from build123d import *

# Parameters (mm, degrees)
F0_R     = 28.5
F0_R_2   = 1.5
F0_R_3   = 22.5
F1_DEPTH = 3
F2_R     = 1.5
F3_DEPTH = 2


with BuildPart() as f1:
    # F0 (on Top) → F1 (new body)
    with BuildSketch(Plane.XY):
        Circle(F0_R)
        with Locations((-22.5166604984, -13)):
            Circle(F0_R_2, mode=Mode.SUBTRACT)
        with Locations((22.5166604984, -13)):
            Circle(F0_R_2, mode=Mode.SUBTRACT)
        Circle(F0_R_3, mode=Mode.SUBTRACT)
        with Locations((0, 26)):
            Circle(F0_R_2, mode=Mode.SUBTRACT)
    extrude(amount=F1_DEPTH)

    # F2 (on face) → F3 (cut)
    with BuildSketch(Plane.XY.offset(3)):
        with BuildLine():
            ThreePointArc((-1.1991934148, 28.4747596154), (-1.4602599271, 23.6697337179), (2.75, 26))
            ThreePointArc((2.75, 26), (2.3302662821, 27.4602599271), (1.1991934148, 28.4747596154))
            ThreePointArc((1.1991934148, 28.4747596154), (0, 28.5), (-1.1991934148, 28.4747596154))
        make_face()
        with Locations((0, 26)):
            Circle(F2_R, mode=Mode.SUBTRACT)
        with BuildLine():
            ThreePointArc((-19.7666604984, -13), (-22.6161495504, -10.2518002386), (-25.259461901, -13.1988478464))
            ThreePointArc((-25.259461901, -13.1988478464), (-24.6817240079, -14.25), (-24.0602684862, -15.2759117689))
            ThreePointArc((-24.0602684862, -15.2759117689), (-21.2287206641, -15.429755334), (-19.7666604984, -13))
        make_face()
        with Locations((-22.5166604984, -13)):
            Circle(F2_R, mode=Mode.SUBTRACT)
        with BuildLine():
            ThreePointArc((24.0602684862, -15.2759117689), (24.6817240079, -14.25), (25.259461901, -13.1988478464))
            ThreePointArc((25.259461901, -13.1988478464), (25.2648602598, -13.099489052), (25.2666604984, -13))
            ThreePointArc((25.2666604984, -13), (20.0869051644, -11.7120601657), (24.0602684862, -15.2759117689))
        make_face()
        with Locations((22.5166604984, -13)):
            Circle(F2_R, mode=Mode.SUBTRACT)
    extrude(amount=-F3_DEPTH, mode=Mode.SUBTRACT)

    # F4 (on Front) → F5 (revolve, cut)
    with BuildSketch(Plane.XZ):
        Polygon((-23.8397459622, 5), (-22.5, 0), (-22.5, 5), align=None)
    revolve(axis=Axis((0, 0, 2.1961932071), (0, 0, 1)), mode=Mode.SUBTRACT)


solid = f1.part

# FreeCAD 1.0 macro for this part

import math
import FreeCAD as App
import Part
import Sketcher
Q = App.Units.Quantity


def add_polygon(sketch, points):
    """Adds a closed chain of lines whose ends are joined by coincident constraints."""
    first, n = sketch.GeometryCount, len(points)
    for a, b in zip(points, points[1:] + points[:1]):
        sketch.addGeometry(Part.LineSegment(App.Vector(*a, 0), App.Vector(*b, 0)), False)
    for i in range(n):
        sketch.addConstraint(Sketcher.Constraint("Coincident", first + i, 2, first + (i + 1) % n, 1))

doc = App.newDocument("Part")
body = doc.addObject("PartDesign::Body", "Body")

sketch1 = doc.addObject("Sketcher::SketchObject", "Sketch")
body.addObject(sketch1)
sketch1.AttachmentSupport = (doc.XY_Plane, [""])
sketch1.MapMode = "FlatFace"
sketch1.addGeometry([
    Part.Circle(App.Vector(0, 0, 0), App.Vector(0, 0, 1), 28.5),
    Part.Circle(App.Vector(-22.5, -13, 0), App.Vector(0, 0, 1), 1.5),
    Part.Circle(App.Vector(22.5, -13, 0), App.Vector(0, 0, 1), 1.5),
    Part.Circle(App.Vector(0, 0, 0), App.Vector(0, 0, 1), 22.5),
    Part.Circle(App.Vector(0, 26, 0), App.Vector(0, 0, 1), 1.5),
], False)
sketch1.addConstraint([
    Sketcher.Constraint("Coincident", 0, 3, -1, 1),
    Sketcher.Constraint("Coincident", 3, 3, -1, 1),
    Sketcher.Constraint("Equal", 1, 2),
    Sketcher.Constraint("Equal", 2, 4),
    Sketcher.Constraint("Symmetric", 1, 3, 2, 3, -2),
    Sketcher.Constraint("PointOnObject", 4, 3, -2),
    Sketcher.Constraint("Diameter", 0, 57.0),
    Sketcher.Constraint("Diameter", 1, 3.0),
    Sketcher.Constraint("Diameter", 3, 45.0),
    Sketcher.Constraint("DistanceY", 1, 3, -1, 1, 13.0),
    Sketcher.Constraint("DistanceY", -1, 1, 4, 3, 26.0),
    Sketcher.Constraint("DistanceX", 1, 3, -1, 1, 22.51666),
])
pad1 = doc.addObject("PartDesign::Pad", "Pad")
body.addObject(pad1)
pad1.Profile = sketch1
pad1.Length = 3

sketch2 = doc.addObject("Sketcher::SketchObject", "Sketch001")
body.addObject(sketch2)
sketch2.AttachmentSupport = (doc.XY_Plane, [""])
sketch2.MapMode = "FlatFace"
sketch2.AttachmentOffset = App.Placement(App.Vector(0, 0, 3), App.Rotation())
sketch2.addGeometry([
    Part.ArcOfCircle(Part.Circle(App.Vector(0, 26, 0), App.Vector(0, 0, 1), 2.75), math.radians(116), math.radians(360)),
    Part.ArcOfCircle(Part.Circle(App.Vector(0, 26, 0), App.Vector(0, 0, 1), 2.75), math.radians(0), math.radians(64)),
    Part.ArcOfCircle(Part.Circle(App.Vector(0, 0, 0), App.Vector(0, 0, 1), 28.5), math.radians(87.59), math.radians(92.41)),
    Part.Circle(App.Vector(0, 26, 0), App.Vector(0, 0, 1), 1.5),
    Part.ArcOfCircle(Part.Circle(App.Vector(-22.52, -13, 0), App.Vector(0, 0, 1), 2.75), math.radians(0), math.radians(184)),
    Part.ArcOfCircle(Part.Circle(App.Vector(0, 0, 0), App.Vector(0, 0, 1), 28.5), math.radians(-152.41), math.radians(-147.59)),
    Part.ArcOfCircle(Part.Circle(App.Vector(-22.52, -13, 0), App.Vector(0, 0, 1), 2.75), math.radians(-124), math.radians(0)),
    Part.Circle(App.Vector(-22.52, -13, 0), App.Vector(0, 0, 1), 1.5),
    Part.ArcOfCircle(Part.Circle(App.Vector(0, 0, 0), App.Vector(0, 0, 1), 28.5), math.radians(-32.41), math.radians(-27.59)),
    Part.ArcOfCircle(Part.Circle(App.Vector(22.52, -13, 0), App.Vector(0, 0, 1), 2.75), math.radians(-4.15), math.radians(0)),
    Part.ArcOfCircle(Part.Circle(App.Vector(22.52, -13, 0), App.Vector(0, 0, 1), 2.75), math.radians(0), math.radians(304)),
    Part.Circle(App.Vector(22.52, -13, 0), App.Vector(0, 0, 1), 1.5),
], False)
sketch2.addConstraint([
    Sketcher.Constraint("Tangent", 0, 2, 1, 1),
    Sketcher.Constraint("Coincident", 1, 2, 2, 1),
    Sketcher.Constraint("Coincident", 2, 2, 0, 1),
    Sketcher.Constraint("Coincident", 4, 2, 5, 1),
    Sketcher.Constraint("Coincident", 5, 2, 6, 1),
    Sketcher.Constraint("Tangent", 6, 2, 4, 1),
    Sketcher.Constraint("Coincident", 8, 2, 9, 1),
    Sketcher.Constraint("Tangent", 9, 2, 10, 1),
    Sketcher.Constraint("Coincident", 10, 2, 8, 1),
    Sketcher.Constraint("Coincident", 2, 3, -1, 1),
    Sketcher.Constraint("Coincident", 5, 3, -1, 1),
    Sketcher.Constraint("Coincident", 8, 3, -1, 1),
    Sketcher.Constraint("Coincident", 3, 3, 0, 3),
    Sketcher.Constraint("Coincident", 7, 3, 4, 3),
    Sketcher.Constraint("Coincident", 11, 3, 9, 3),
    Sketcher.Constraint("Equal", 0, 1),
    Sketcher.Constraint("Equal", 1, 4),
    Sketcher.Constraint("Equal", 2, 5),
    Sketcher.Constraint("Equal", 4, 6),
    Sketcher.Constraint("Equal", 3, 7),
    Sketcher.Constraint("Equal", 5, 8),
    Sketcher.Constraint("Equal", 6, 9),
    Sketcher.Constraint("Equal", 9, 10),
    Sketcher.Constraint("Equal", 7, 11),
    Sketcher.Constraint("Symmetric", 4, 3, 9, 3, -2),
    Sketcher.Constraint("PointOnObject", 0, 3, -2),
    Sketcher.Constraint("Horizontal", 3, 3, 0, 2),
    Sketcher.Constraint("Horizontal", 11, 3, 6, 2),
    Sketcher.Constraint("Horizontal", 6, 2, 9, 2),
    Sketcher.Constraint("Diameter", 3, 3.0),
    Sketcher.Constraint("Radius", 2, 28.5),
    Sketcher.Constraint("Radius", 0, 2.75),
    Sketcher.Constraint("DistanceY", -1, 1, 0, 3, 26.0),
    Sketcher.Constraint("DistanceY", 4, 3, -1, 1, 13.0),
    Sketcher.Constraint("DistanceX", 4, 2, 4, 3, 2.742801),
])
pocket1 = doc.addObject("PartDesign::Pocket", "Pocket")
body.addObject(pocket1)
pocket1.Profile = sketch2
pocket1.Length = 2

sketch3 = doc.addObject("Sketcher::SketchObject", "Sketch002")
body.addObject(sketch3)
sketch3.AttachmentSupport = (doc.XZ_Plane, [""])
sketch3.MapMode = "FlatFace"
add_polygon(sketch3, [(-23.8, 5), (-22.5, 0), (-22.5, 5)])
sketch3.addConstraint([
    Sketcher.Constraint("Vertical", 1),
    Sketcher.Constraint("Horizontal", 2),
    Sketcher.Constraint("PointOnObject", 0, 2, -1),
    Sketcher.Constraint("DistanceY", 1, 1, 1, 2, 5.0),
    Sketcher.Constraint("Angle", 0, Q("-75 deg")),
    Sketcher.Constraint("DistanceX", 0, 2, -1, 1, 22.5),
])
groove = doc.addObject("PartDesign::Groove", "Groove")
body.addObject(groove)
groove.Profile = sketch3
groove.ReferenceAxis = (sketch3, ["V_Axis"])
groove.Angle = 360

doc.recompute()
